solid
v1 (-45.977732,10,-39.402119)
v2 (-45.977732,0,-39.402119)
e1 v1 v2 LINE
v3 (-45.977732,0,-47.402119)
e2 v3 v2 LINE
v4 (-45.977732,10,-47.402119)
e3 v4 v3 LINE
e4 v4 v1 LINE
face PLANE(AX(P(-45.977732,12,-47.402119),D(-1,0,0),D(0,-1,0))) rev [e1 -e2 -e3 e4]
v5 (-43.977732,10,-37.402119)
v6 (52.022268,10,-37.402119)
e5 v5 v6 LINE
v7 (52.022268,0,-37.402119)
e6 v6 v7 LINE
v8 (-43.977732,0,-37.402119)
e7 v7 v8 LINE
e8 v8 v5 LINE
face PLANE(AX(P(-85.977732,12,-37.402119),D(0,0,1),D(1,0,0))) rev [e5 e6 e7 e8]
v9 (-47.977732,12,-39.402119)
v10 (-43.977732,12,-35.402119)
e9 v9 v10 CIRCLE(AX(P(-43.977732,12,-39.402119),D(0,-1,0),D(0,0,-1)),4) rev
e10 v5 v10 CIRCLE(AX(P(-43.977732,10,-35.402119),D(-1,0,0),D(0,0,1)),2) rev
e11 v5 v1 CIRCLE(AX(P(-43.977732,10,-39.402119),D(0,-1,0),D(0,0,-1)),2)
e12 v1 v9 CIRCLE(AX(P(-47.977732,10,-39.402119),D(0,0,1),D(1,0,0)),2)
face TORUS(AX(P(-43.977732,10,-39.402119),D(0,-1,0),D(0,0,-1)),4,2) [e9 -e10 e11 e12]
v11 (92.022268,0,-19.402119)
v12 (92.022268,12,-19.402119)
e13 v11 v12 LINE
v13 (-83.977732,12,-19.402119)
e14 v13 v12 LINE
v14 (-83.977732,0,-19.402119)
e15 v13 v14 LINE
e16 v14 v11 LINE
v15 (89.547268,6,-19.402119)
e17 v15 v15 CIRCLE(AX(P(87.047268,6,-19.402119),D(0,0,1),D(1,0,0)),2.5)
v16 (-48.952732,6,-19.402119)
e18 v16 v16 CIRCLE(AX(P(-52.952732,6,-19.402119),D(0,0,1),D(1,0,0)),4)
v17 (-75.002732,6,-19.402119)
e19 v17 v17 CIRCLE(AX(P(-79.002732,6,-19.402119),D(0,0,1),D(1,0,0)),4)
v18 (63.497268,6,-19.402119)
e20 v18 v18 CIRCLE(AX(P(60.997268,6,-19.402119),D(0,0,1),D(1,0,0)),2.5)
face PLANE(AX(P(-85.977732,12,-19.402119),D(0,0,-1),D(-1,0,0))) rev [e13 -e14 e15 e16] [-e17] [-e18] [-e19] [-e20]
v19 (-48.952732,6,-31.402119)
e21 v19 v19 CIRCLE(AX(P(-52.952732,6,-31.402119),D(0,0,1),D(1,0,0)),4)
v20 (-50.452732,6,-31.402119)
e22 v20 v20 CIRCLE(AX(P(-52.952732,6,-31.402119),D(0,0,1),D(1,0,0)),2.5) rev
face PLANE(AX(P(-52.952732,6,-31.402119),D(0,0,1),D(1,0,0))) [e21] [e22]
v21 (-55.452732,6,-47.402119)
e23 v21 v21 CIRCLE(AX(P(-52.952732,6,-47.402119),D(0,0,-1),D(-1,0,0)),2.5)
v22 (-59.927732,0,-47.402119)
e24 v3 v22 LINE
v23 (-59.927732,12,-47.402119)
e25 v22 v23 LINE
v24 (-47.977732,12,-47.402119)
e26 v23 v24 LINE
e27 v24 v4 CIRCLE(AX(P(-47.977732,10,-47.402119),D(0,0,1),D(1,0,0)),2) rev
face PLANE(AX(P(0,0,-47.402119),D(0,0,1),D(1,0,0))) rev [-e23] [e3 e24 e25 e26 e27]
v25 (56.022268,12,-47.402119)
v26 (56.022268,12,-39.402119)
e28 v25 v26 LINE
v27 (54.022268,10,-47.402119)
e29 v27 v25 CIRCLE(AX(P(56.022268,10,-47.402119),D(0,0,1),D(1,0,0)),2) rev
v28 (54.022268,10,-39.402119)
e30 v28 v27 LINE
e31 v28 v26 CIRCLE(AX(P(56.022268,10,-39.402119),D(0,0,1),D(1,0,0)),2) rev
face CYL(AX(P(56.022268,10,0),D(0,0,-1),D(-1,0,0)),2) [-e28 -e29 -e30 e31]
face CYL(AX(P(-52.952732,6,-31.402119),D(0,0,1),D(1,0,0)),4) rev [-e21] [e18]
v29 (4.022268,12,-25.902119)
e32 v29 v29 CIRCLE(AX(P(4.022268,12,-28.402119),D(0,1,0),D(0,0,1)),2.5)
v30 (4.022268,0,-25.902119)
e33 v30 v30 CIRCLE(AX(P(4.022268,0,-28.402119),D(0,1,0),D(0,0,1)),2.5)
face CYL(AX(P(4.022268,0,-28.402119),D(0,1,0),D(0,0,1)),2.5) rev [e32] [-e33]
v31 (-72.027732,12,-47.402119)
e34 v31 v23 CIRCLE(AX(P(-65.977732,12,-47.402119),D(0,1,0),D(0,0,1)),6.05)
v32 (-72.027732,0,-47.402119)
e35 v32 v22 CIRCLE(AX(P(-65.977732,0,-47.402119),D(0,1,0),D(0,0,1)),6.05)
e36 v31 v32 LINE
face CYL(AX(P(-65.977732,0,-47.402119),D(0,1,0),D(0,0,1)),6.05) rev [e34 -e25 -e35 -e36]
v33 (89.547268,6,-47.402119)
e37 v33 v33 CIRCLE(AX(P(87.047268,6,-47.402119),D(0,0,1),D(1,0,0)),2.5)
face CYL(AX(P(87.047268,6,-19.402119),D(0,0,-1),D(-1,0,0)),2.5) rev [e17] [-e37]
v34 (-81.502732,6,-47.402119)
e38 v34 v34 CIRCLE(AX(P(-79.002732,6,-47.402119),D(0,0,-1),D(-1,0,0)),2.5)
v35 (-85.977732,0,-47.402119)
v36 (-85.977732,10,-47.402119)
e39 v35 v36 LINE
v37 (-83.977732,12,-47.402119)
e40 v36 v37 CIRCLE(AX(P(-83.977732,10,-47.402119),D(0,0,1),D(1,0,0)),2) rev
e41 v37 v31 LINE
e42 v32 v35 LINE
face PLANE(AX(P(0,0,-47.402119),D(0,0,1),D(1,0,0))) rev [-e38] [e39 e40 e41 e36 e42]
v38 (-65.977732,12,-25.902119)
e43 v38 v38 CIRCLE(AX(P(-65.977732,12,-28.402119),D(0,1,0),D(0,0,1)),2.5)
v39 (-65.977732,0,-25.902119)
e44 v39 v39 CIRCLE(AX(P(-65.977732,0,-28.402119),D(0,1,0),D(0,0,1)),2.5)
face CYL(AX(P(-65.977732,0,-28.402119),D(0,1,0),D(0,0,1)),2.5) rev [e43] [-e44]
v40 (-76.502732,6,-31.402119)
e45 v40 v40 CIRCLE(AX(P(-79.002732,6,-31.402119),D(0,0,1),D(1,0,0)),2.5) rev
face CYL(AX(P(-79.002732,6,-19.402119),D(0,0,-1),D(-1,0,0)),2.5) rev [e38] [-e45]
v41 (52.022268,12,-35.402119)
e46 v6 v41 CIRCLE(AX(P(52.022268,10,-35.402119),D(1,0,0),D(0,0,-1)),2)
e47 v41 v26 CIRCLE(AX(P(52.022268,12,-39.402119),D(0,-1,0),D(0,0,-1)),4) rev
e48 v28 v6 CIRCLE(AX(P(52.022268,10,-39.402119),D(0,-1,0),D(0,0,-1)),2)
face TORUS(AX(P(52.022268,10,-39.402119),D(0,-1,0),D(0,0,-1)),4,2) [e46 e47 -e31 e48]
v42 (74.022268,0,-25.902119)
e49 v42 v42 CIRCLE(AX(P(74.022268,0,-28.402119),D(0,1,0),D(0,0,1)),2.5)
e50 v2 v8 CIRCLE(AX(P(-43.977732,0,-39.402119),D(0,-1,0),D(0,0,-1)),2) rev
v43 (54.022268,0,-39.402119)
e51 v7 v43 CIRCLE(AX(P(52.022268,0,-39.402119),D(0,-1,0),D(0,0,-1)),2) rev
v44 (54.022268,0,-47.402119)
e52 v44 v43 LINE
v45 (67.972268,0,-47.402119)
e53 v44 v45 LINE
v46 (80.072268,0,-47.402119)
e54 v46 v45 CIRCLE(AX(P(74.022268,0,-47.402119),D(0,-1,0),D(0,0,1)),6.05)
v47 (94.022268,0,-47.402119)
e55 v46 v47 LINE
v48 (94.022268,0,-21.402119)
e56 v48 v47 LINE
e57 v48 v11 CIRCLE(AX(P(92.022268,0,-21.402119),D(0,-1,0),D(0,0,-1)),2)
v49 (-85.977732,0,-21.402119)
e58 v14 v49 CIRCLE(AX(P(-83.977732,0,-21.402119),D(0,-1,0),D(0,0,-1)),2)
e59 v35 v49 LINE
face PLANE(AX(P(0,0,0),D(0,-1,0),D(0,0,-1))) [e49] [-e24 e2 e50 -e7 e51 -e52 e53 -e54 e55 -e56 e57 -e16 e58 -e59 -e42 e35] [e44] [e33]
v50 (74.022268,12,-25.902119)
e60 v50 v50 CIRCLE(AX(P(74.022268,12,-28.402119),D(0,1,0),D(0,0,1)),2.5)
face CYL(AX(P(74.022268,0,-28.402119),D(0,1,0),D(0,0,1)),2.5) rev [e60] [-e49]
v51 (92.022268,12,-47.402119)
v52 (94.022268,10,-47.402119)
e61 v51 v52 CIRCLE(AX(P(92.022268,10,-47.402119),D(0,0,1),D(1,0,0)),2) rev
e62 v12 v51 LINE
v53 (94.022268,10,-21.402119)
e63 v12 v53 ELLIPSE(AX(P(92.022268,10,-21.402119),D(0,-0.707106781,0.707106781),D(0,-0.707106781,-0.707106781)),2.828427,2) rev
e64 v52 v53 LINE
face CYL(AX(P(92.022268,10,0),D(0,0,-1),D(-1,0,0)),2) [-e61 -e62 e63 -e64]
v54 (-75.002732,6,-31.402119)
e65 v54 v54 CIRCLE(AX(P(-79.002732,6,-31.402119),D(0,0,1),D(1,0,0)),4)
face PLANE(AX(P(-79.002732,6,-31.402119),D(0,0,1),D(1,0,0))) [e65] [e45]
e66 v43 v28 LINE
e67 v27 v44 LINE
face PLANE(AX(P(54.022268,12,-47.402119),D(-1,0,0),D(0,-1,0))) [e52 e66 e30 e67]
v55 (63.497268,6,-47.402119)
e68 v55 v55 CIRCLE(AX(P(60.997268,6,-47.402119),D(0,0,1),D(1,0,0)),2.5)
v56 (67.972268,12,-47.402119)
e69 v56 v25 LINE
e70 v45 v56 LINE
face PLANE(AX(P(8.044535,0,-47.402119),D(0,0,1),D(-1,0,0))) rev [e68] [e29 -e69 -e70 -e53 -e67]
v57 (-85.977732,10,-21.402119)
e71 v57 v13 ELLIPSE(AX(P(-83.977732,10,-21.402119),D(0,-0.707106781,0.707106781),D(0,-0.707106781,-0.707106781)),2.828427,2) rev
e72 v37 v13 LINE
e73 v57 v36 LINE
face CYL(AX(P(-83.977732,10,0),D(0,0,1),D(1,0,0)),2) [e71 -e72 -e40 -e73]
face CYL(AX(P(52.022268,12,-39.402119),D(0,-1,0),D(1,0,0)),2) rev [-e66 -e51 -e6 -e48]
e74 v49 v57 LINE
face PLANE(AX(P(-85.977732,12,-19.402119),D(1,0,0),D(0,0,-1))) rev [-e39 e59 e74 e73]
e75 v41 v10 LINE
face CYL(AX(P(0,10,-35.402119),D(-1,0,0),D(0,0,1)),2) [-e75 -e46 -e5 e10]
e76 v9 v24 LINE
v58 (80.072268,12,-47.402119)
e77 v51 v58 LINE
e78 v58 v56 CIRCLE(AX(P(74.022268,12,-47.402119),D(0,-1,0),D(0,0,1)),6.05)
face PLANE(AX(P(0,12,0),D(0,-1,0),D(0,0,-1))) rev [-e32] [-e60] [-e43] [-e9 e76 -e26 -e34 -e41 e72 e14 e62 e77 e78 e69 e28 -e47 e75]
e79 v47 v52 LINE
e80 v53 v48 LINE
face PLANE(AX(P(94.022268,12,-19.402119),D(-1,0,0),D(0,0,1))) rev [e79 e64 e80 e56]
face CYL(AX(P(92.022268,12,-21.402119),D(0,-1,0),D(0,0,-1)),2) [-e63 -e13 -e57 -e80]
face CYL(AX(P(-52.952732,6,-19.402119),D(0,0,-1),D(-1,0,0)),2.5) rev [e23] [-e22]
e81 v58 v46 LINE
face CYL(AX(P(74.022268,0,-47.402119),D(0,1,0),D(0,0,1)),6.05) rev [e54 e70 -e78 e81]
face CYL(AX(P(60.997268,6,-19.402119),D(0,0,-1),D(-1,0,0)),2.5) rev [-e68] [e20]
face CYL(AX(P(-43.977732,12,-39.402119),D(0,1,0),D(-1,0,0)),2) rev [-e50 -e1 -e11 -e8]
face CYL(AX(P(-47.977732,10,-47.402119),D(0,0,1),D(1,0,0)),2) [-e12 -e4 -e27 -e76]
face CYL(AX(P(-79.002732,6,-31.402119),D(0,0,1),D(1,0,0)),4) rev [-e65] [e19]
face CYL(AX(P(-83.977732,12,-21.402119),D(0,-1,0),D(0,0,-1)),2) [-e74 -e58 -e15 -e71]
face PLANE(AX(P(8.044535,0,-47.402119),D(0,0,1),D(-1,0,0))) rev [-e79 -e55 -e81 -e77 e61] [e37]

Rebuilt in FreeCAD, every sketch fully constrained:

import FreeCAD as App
import Part
import Sketcher
from FreeCAD import Vector


def edges_at(feature, points):
    """Names of the edges that pass closest to the given points."""
    edges = feature.Shape.Edges
    near = lambda p: min(range(len(edges)), key=lambda i: edges[i].distToShape(Part.Vertex(*p))[0])
    return sorted({f"Edge{near(p) + 1}" for p in points})


def add_polygon(sketch, points):
    """Adds a closed chain of lines whose ends are joined by coincident constraints."""
    first, n = sketch.GeometryCount, len(points)
    for a, b in zip(points, points[1:] + points[:1]):
        sketch.addGeometry(Part.LineSegment(App.Vector(*a, 0), App.Vector(*b, 0)), False)
    for i in range(n):
        sketch.addConstraint(Sketcher.Constraint("Coincident", first + i, 2, first + (i + 1) % n, 1))

doc = App.newDocument("Part")
body = doc.addObject("PartDesign::Body", "Body")

# Sketch on XZ plane
sketch1 = doc.addObject("Sketcher::SketchObject", "Sketch")
body.addObject(sketch1)
sketch1.AttachmentSupport = (doc.XZ_Plane, [""])
sketch1.MapMode = "FlatFace"
add_polygon(sketch1, [(-86, -37), (-86, -19), (94, -19), (94, -37)])  # lines 0-3
sketch1.addConstraint(Sketcher.Constraint("Vertical", 0))
sketch1.addConstraint(Sketcher.Constraint("Horizontal", 1))
sketch1.addConstraint(Sketcher.Constraint("Vertical", 2))
sketch1.addConstraint(Sketcher.Constraint("Horizontal", 3))
sketch1.addConstraint(Sketcher.Constraint("DistanceX", 1, 1, 1, 2, 180.0))
sketch1.addConstraint(Sketcher.Constraint("DistanceY", 0, 1, 0, 2, 18.0))
sketch1.addConstraint(Sketcher.Constraint("DistanceY", 0, 2, -1, 1, 19.402119))
sketch1.addConstraint(Sketcher.Constraint("DistanceX", 0, 2, -1, 1, 85.977732))
pad1 = doc.addObject("PartDesign::Pad", "Pad")
body.addObject(pad1)
pad1.Profile = sketch1
pad1.Length = 12
pad1.Reversed = True

# Sketch on XY plane
sketch2 = doc.addObject("Sketcher::SketchObject", "Sketch001")
body.addObject(sketch2)
sketch2.AttachmentSupport = (doc.XY_Plane, [""])
sketch2.MapMode = "FlatFace"
sketch2.AttachmentOffset = App.Placement(Vector(0, 0, -37.402119), App.Rotation())
add_polygon(sketch2, [(-46, 12), (-46, 0), (-86, 0), (-86, 12)])  # lines 0-3
sketch2.addConstraint(Sketcher.Constraint("Vertical", 0))
sketch2.addConstraint(Sketcher.Constraint("Horizontal", 1))
sketch2.addConstraint(Sketcher.Constraint("Vertical", 2))
sketch2.addConstraint(Sketcher.Constraint("Horizontal", 3))
sketch2.addConstraint(Sketcher.Constraint("PointOnObject", 0, 2, -1))
sketch2.addConstraint(Sketcher.Constraint("DistanceX", 1, 2, 1, 1, 40.0))
sketch2.addConstraint(Sketcher.Constraint("DistanceY", 0, 2, 0, 1, 12.0))
sketch2.addConstraint(Sketcher.Constraint("DistanceX", 0, 2, -1, 1, 45.977732))
pad2 = doc.addObject("PartDesign::Pad", "Pad001")
body.addObject(pad2)
pad2.Profile = sketch2
pad2.Length = 10
pad2.Reversed = True

# Sketch on XZ plane
sketch3 = doc.addObject("Sketcher::SketchObject", "Sketch002")
body.addObject(sketch3)
sketch3.AttachmentSupport = (doc.XZ_Plane, [""])
sketch3.MapMode = "FlatFace"
sketch3.AttachmentOffset = App.Placement(Vector(0, 0, -12), App.Rotation())
sketch3.addGeometry(Part.Circle(Vector(-66, -47, 0), Vector(0, 0, 1), 6), False)
sketch3.addConstraint(Sketcher.Constraint("Diameter", 0, 12.1))
sketch3.addConstraint(Sketcher.Constraint("DistanceY", 0, 3, -1, 1, 47.402119))
sketch3.addConstraint(Sketcher.Constraint("DistanceX", 0, 3, -1, 1, 65.977732))
pocket1 = doc.addObject("PartDesign::Pocket", "Pocket")
body.addObject(pocket1)
pocket1.Profile = sketch3
pocket1.Length = 12
pocket1.Reversed = True

# Sketch on XY plane
sketch4 = doc.addObject("Sketcher::SketchObject", "Sketch003")
body.addObject(sketch4)
sketch4.AttachmentSupport = (doc.XY_Plane, [""])
sketch4.MapMode = "FlatFace"
sketch4.AttachmentOffset = App.Placement(Vector(0, 0, -19.402119), App.Rotation())
sketch4.addGeometry(Part.Circle(Vector(-53, 6, 0), Vector(0, 0, 1), 2.5), False)
sketch4.addGeometry(Part.Circle(Vector(-79, 6, 0), Vector(0, 0, 1), 2.5), False)
sketch4.addConstraint(Sketcher.Constraint("Equal", 0, 1))
sketch4.addConstraint(Sketcher.Constraint("Horizontal", 0, 3, 1, 3))
sketch4.addConstraint(Sketcher.Constraint("Diameter", 0, 5.0))
sketch4.addConstraint(Sketcher.Constraint("DistanceY", -1, 1, 0, 3, 6.0))
sketch4.addConstraint(Sketcher.Constraint("DistanceX", 1, 3, 0, 3, 26.05))
sketch4.addConstraint(Sketcher.Constraint("DistanceX", 0, 3, -1, 1, 52.952732))
pocket2 = doc.addObject("PartDesign::Pocket", "Pocket001")
body.addObject(pocket2)
pocket2.Profile = sketch4
pocket2.Length = 28

# Sketch on XY plane
sketch5 = doc.addObject("Sketcher::SketchObject", "Sketch004")
body.addObject(sketch5)
sketch5.AttachmentSupport = (doc.XY_Plane, [""])
sketch5.MapMode = "FlatFace"
sketch5.AttachmentOffset = App.Placement(Vector(0, 0, -19.402119), App.Rotation())
sketch5.addGeometry(Part.Circle(Vector(-53, 6, 0), Vector(0, 0, 1), 4), False)
sketch5.addGeometry(Part.Circle(Vector(-79, 6, 0), Vector(0, 0, 1), 4), False)
sketch5.addConstraint(Sketcher.Constraint("Equal", 0, 1))
sketch5.addConstraint(Sketcher.Constraint("Horizontal", 0, 3, 1, 3))
sketch5.addConstraint(Sketcher.Constraint("Diameter", 0, 8.0))
sketch5.addConstraint(Sketcher.Constraint("DistanceY", -1, 1, 0, 3, 6.0))
sketch5.addConstraint(Sketcher.Constraint("DistanceX", 1, 3, 0, 3, 26.05))
sketch5.addConstraint(Sketcher.Constraint("DistanceX", 0, 3, -1, 1, 52.952732))
pocket3 = doc.addObject("PartDesign::Pocket", "Pocket002")
body.addObject(pocket3)
pocket3.Profile = sketch5
pocket3.Length = 12
doc.recompute()

datumplane = doc.addObject("PartDesign::Plane", "DatumPlane")
body.addObject(datumplane)
datumplane.AttachmentSupport = (doc.YZ_Plane, [""])
datumplane.MapMode = "FlatFace"
datumplane.AttachmentOffset = App.Placement(Vector(0, 0, 4.022268), App.Rotation())
mirrored = doc.addObject("PartDesign::Mirrored", "Mirrored")
body.addObject(mirrored)
mirrored.Originals = [pad2, pocket1, pocket2]
mirrored.MirrorPlane = (datumplane, [""])
body.Tip = mirrored

# Sketch on XZ plane
sketch6 = doc.addObject("Sketcher::SketchObject", "Sketch005")
body.addObject(sketch6)
sketch6.AttachmentSupport = (doc.XZ_Plane, [""])
sketch6.MapMode = "FlatFace"
sketch6.AttachmentOffset = App.Placement(Vector(0, 0, -12), App.Rotation())
sketch6.addGeometry(Part.Circle(Vector(4, -28.4, 0), Vector(0, 0, 1), 2.5), False)
sketch6.addGeometry(Part.Circle(Vector(74, -28.4, 0), Vector(0, 0, 1), 2.5), False)
sketch6.addGeometry(Part.Circle(Vector(-66, -28.4, 0), Vector(0, 0, 1), 2.5), False)
sketch6.addConstraint(Sketcher.Constraint("Equal", 0, 1))
sketch6.addConstraint(Sketcher.Constraint("Equal", 1, 2))
sketch6.addConstraint(Sketcher.Constraint("Horizontal", 0, 3, 1, 3))
sketch6.addConstraint(Sketcher.Constraint("Horizontal", 1, 3, 2, 3))
sketch6.addConstraint(Sketcher.Constraint("Diameter", 0, 5.0))
sketch6.addConstraint(Sketcher.Constraint("DistanceX", 0, 3, 1, 3, 70.0))
sketch6.addConstraint(Sketcher.Constraint("DistanceX", 2, 3, 0, 3, 70.0))
sketch6.addConstraint(Sketcher.Constraint("DistanceY", 0, 3, -1, 1, 28.402119))
sketch6.addConstraint(Sketcher.Constraint("DistanceX", -1, 1, 0, 3, 4.022268))
pocket4 = doc.addObject("PartDesign::Pocket", "Pocket003")
body.addObject(pocket4)
pocket4.Profile = sketch6
pocket4.Length = 12
pocket4.Reversed = True
doc.recompute()

fillet = doc.addObject("PartDesign::Fillet", "Fillet")
body.addObject(fillet)
fillet.Base = (pocket4, edges_at(pocket4, [
    (94.022, 12, -33.402),
    (-45.978, 6, -37.402),
    (-45.978, 12, -42.402),
    (-85.978, 12, -33.402),
    (4.022, 12, -37.402),
    (54.022, 12, -42.402),
    (54.022, 6, -37.402),
    (94.022, 6, -19.402),
    (-85.978, 6, -19.402),
]))
fillet.Radius = 2

doc.recompute()
